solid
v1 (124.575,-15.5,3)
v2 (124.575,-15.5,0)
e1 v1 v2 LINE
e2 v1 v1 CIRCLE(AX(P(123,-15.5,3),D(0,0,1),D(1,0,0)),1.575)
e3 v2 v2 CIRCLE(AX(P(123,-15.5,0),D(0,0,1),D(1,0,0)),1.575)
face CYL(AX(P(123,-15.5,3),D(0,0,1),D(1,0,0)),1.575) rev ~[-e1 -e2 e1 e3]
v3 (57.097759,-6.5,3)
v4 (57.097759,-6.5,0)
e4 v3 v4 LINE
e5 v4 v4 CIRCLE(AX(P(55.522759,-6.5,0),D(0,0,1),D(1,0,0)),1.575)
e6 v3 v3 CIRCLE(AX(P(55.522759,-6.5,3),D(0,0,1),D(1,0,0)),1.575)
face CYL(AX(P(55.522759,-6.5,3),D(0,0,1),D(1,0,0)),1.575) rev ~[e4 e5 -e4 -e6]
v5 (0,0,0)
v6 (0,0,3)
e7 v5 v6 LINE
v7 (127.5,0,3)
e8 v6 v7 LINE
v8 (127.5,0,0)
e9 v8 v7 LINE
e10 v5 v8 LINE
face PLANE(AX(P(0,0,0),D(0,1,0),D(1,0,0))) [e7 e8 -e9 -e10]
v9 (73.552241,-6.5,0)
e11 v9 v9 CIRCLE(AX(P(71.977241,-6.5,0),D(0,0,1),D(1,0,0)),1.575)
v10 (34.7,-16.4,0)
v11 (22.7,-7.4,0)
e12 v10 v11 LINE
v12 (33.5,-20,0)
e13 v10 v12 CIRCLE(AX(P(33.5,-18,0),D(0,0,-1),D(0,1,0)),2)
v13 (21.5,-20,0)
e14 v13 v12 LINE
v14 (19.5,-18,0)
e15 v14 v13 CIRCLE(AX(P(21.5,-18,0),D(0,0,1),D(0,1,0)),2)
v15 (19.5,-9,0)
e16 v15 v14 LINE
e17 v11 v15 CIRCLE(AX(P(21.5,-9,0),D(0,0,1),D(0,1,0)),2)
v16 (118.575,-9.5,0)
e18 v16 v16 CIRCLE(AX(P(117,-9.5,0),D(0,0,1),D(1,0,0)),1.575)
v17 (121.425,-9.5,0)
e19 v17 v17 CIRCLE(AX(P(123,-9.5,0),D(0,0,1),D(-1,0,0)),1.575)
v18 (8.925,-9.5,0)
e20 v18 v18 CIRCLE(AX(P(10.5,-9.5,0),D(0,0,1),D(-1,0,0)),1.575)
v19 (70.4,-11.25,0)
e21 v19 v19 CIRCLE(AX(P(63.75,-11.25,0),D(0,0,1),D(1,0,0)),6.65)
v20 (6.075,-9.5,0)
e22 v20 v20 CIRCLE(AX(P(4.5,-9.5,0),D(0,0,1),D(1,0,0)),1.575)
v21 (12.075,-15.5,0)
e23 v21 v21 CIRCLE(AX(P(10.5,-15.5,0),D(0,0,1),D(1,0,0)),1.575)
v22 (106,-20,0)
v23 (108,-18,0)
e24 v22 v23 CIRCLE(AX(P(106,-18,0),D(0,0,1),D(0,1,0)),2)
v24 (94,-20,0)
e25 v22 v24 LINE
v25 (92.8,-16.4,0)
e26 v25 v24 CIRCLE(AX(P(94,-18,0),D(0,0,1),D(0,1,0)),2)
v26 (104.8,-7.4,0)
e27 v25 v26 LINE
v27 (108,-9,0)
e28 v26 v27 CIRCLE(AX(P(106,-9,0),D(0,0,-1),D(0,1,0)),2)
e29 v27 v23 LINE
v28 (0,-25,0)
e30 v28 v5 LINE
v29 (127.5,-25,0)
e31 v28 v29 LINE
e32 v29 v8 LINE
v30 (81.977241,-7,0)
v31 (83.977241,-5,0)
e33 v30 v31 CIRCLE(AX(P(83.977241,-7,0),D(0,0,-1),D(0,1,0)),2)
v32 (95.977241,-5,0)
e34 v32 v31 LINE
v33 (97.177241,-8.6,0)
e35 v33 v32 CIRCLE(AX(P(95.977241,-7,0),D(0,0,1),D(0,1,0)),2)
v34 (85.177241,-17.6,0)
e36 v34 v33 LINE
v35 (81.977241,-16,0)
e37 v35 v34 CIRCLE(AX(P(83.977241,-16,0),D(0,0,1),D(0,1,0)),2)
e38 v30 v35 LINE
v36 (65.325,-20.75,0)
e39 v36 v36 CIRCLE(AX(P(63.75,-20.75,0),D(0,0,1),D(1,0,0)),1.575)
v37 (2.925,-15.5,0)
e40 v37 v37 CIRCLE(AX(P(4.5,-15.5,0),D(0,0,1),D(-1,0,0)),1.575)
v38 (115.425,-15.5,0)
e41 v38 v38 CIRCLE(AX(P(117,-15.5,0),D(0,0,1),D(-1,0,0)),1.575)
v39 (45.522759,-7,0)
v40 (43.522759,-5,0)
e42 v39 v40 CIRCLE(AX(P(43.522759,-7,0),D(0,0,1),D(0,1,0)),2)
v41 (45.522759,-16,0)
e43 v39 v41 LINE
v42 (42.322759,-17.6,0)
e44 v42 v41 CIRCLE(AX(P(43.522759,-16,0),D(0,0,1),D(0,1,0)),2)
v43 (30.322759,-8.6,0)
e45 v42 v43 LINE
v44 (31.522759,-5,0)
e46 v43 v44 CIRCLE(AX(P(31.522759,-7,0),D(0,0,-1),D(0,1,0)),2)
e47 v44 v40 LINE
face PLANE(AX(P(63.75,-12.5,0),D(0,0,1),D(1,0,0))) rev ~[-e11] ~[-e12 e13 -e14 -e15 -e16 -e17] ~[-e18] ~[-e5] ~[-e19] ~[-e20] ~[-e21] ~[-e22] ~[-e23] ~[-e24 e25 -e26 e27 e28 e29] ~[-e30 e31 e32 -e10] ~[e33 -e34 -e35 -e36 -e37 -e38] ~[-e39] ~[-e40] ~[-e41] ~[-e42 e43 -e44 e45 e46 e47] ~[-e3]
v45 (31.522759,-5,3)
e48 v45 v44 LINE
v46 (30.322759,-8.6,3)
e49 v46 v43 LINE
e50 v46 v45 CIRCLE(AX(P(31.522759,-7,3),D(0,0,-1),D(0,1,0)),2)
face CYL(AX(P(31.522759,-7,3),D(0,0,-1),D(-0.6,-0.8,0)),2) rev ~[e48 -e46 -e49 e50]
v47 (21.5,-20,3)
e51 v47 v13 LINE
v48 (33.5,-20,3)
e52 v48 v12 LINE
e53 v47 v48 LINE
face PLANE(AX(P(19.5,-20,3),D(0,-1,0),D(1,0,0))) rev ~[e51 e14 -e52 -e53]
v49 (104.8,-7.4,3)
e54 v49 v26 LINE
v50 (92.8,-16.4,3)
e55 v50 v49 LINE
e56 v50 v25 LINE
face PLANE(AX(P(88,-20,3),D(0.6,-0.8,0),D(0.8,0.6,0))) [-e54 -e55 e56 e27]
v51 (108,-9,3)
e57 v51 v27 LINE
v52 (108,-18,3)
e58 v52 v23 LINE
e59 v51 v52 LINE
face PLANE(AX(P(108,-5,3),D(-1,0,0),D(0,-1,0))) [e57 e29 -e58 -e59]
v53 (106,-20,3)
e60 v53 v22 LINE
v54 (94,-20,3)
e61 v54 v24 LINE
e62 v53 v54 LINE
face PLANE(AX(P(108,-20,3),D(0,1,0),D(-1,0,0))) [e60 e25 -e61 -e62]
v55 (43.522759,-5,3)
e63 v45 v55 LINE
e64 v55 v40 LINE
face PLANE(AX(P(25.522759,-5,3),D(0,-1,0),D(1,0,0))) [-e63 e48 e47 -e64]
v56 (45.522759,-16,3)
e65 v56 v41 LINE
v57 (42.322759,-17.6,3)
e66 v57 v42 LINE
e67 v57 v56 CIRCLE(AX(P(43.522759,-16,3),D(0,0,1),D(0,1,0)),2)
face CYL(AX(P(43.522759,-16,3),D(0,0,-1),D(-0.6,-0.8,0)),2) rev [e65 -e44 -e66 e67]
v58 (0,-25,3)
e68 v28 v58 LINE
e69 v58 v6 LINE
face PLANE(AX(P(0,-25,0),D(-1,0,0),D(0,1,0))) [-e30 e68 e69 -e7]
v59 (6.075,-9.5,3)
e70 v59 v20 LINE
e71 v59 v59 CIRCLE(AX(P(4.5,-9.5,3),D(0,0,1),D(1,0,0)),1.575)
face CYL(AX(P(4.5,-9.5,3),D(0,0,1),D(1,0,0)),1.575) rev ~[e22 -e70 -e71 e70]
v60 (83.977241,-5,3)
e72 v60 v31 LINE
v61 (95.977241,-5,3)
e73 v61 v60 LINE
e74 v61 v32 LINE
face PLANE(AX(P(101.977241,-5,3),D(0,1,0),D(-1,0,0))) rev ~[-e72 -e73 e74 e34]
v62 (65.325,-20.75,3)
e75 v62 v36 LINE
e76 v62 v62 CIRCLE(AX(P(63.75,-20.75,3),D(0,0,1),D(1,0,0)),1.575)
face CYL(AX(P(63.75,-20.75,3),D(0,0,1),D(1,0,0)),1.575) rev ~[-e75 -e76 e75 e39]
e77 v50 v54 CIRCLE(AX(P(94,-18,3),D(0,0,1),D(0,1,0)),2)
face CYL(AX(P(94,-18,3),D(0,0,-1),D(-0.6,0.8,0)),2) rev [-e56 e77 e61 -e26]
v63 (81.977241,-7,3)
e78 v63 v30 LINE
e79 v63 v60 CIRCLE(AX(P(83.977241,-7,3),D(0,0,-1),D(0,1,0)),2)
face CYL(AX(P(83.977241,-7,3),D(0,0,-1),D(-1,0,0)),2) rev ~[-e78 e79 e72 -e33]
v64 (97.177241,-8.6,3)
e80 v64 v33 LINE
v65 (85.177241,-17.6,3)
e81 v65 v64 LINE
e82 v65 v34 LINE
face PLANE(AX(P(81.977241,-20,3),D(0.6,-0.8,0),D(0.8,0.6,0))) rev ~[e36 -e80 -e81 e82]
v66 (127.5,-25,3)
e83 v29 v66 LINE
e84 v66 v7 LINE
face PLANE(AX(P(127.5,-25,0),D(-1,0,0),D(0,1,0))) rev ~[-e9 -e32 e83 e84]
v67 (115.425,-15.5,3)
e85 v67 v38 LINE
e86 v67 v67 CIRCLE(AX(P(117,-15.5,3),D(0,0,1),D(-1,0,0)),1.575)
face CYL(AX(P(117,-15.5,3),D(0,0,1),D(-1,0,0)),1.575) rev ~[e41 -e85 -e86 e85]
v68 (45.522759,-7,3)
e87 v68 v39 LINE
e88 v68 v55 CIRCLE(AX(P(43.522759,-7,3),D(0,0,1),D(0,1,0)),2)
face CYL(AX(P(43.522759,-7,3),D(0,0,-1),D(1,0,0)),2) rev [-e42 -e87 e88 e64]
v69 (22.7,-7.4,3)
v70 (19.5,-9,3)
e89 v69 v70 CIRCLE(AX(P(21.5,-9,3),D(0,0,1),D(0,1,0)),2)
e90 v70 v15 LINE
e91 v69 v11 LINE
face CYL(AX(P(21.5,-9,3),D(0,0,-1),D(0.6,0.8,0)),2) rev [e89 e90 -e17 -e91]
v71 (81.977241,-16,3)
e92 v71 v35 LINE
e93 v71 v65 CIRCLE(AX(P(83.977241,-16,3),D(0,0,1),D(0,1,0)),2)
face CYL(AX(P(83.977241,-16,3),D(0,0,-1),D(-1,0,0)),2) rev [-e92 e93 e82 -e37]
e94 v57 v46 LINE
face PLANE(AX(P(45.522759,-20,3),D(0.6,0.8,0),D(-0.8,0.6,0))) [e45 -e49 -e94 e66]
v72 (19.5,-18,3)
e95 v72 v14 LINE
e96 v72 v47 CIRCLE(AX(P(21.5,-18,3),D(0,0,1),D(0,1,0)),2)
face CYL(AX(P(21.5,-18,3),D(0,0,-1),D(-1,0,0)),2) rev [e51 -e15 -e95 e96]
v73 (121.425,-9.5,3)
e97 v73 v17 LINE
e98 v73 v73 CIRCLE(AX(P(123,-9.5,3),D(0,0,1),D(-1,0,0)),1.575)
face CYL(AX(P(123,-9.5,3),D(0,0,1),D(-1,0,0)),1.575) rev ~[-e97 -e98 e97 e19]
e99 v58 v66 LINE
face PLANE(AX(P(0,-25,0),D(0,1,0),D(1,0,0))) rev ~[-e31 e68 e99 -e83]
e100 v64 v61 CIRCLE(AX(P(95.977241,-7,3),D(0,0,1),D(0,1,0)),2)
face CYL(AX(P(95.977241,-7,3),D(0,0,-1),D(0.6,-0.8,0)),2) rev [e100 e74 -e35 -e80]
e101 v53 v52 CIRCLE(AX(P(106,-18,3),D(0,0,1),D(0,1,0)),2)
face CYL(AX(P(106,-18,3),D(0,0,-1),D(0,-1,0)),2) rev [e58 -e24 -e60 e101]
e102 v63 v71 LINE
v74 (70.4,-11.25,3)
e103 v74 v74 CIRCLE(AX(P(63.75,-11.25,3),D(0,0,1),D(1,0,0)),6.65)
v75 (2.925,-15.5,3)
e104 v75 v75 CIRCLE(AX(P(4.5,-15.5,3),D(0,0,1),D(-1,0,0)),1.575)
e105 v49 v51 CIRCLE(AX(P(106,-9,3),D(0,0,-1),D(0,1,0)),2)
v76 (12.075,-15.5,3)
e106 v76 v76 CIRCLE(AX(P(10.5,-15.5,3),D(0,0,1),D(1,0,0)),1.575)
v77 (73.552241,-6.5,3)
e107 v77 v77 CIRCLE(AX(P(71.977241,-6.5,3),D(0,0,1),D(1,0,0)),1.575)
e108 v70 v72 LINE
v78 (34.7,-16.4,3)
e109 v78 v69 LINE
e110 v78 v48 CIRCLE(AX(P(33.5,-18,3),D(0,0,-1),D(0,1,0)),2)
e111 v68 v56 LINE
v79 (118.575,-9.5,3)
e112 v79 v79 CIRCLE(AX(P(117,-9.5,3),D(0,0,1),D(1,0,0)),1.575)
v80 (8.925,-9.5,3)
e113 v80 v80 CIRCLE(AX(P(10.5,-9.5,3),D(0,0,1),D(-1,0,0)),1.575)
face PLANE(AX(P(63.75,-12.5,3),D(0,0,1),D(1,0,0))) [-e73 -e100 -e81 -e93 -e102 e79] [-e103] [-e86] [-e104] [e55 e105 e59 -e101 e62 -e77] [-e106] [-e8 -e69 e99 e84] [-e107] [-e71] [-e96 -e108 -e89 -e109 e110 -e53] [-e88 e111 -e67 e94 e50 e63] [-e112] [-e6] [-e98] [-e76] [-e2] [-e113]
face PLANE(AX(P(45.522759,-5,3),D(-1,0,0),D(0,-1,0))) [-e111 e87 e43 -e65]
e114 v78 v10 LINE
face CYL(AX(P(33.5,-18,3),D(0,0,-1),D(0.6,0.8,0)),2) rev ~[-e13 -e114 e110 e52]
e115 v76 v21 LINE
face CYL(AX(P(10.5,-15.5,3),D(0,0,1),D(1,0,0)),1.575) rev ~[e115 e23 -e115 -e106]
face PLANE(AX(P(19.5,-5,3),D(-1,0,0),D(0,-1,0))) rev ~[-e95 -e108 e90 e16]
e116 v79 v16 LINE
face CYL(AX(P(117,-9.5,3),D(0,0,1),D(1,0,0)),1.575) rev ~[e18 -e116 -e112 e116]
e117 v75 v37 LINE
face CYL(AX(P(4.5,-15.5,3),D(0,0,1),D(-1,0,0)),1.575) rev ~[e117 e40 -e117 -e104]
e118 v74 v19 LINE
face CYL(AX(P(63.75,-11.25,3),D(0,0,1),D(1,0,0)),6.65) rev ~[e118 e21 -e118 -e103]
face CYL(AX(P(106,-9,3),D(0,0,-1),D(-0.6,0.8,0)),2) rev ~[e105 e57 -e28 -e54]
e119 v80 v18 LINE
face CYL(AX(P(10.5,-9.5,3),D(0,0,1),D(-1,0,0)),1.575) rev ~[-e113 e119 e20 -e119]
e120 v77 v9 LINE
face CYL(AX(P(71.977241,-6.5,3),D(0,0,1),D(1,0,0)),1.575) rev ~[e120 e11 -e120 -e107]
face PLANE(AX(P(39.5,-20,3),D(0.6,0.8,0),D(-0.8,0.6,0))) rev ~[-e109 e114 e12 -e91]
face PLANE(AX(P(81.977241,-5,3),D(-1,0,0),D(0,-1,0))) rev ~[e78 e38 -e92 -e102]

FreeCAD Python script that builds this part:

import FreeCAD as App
import Part
import Sketcher

V = App.Vector
Q = App.Units.Quantity


def edges_at(feature, points):
    """Names of the edges that pass closest to the given points."""
    edges = feature.Shape.Edges
    near = lambda p: min(range(len(edges)), key=lambda i: edges[i].distToShape(Part.Vertex(*p))[0])
    return sorted({f"Edge{near(p) + 1}" for p in points})

doc = App.newDocument("Part")
params = doc.addObject("Spreadsheet::Sheet", "Params")
for row, (alias, value) in enumerate([
    ("sketch1_height", "25 mm"),
    ("sketch1_width", "127.5 mm"),
    ("pad1_length", "3 mm"),
    ("sketch2_diameter", "13.3 mm"),
    ("sketch2_diameter2", "3.15 mm"),
    ("sketch2_width", "20 mm"),
    ("sketch2_height", "15 mm"),
    ("fillet_radius", "2 mm"),
], start=1):
    params.set(f"A{row}", alias)
    params.set(f"B{row}", "=" + value)
    params.setAlias(f"B{row}", alias)

body = doc.addObject("PartDesign::Body", "Body")

# Sketch on XY plane
sketch1 = doc.addObject("Sketcher::SketchObject", "Sketch")
body.addObject(sketch1)
sketch1.AttachmentSupport = (doc.XY_Plane, [""])
sketch1.MapMode = "FlatFace"
sketch1.addGeometry([
    Part.LineSegment(V(0, 0, 0), V(0, -25, 0)),
    Part.LineSegment(V(0, -25, 0), V(127.5, -25, 0)),
    Part.LineSegment(V(127.5, -25, 0), V(127.5, 0, 0)),
    Part.LineSegment(V(127.5, 0, 0), V(0, 0, 0)),
], False)
sketch1.addConstraint([
    Sketcher.Constraint("Coincident", 0, 2, 1, 1),
    Sketcher.Constraint("Coincident", 1, 2, 2, 1),
    Sketcher.Constraint("Coincident", 2, 2, 3, 1),
    Sketcher.Constraint("Coincident", 3, 2, 0, 1),
    Sketcher.Constraint("Vertical", 0),
    Sketcher.Constraint("Horizontal", 1),
    Sketcher.Constraint("Vertical", 2),
    Sketcher.Constraint("Horizontal", 3),
    Sketcher.Constraint("Coincident", 3, 2, -1, 1),
    Sketcher.Constraint("DistanceY", 0, 2, 0, 1, Q("25 mm")),
    Sketcher.Constraint("DistanceX", 1, 1, 1, 2, Q("127.5 mm")),
])
sketch1.setExpression("Constraints[9]", "Params.sketch1_height")
sketch1.setExpression("Constraints[10]", "Params.sketch1_width")
pad1 = doc.addObject("PartDesign::Pad", "Pad")
body.addObject(pad1)
pad1.Profile = sketch1
pad1.setExpression("Length", "Params.pad1_length")

# Sketch on XY plane
sketch2 = doc.addObject("Sketcher::SketchObject", "Sketch001")
body.addObject(sketch2)
sketch2.AttachmentSupport = (doc.XY_Plane, [""])
sketch2.MapMode = "FlatFace"
sketch2.AttachmentOffset = App.Placement(V(0, 0, 3), App.Rotation())
sketch2.addGeometry([
    Part.Circle(V(4.5, -9.5, 0), V(0, 0, 1), 1.575),  # 0
    Part.Circle(V(10.5, -9.5, 0), V(0, 0, 1), 1.575),  # 1
    Part.Circle(V(10.5, -15.5, 0), V(0, 0, 1), 1.575),  # 2
    Part.Circle(V(4.5, -15.5, 0), V(0, 0, 1), 1.575),  # 3
    Part.Circle(V(123, -15.5, 0), V(0, 0, 1), 1.575),  # 4
    Part.Circle(V(117, -15.5, 0), V(0, 0, 1), 1.575),  # 5
    Part.Circle(V(117, -9.5, 0), V(0, 0, 1), 1.575),  # 6
    Part.Circle(V(123, -9.5, 0), V(0, 0, 1), 1.575),  # 7
    Part.Circle(V(63.75, -11.25, 0), V(0, 0, 1), 6.65),  # 8
    Part.Circle(V(55.522759, -6.5, 0), V(0, 0, 1), 1.575),  # 9
    Part.Circle(V(71.977241, -6.5, 0), V(0, 0, 1), 1.575),  # 10
    Part.Circle(V(63.75, -20.75, 0), V(0, 0, 1), 1.575),  # 11
    Part.LineSegment(V(108, -20, 0), V(108, -5, 0)),  # 12
    Part.LineSegment(V(108, -5, 0), V(88, -20, 0)),  # 13
    Part.LineSegment(V(88, -20, 0), V(108, -20, 0)),  # 14
    Part.LineSegment(V(81.977241, -5, 0), V(81.977241, -20, 0)),  # 15
    Part.LineSegment(V(81.977241, -20, 0), V(101.977241, -5, 0)),  # 16
    Part.LineSegment(V(101.977241, -5, 0), V(81.977241, -5, 0)),  # 17
    Part.LineSegment(V(45.522759, -5, 0), V(25.522759, -5, 0)),  # 18
    Part.LineSegment(V(25.522759, -5, 0), V(45.522759, -20, 0)),  # 19
    Part.LineSegment(V(45.522759, -20, 0), V(45.522759, -5, 0)),  # 20
    Part.LineSegment(V(39.5, -20, 0), V(19.5, -5, 0)),  # 21
    Part.LineSegment(V(19.5, -5, 0), V(19.5, -20, 0)),  # 22
    Part.LineSegment(V(19.5, -20, 0), V(39.5, -20, 0)),  # 23
], False)
sketch2.addConstraint([
    Sketcher.Constraint("Coincident", 12, 2, 13, 1),
    Sketcher.Constraint("Coincident", 13, 2, 14, 1),
    Sketcher.Constraint("Coincident", 14, 2, 12, 1),
    Sketcher.Constraint("Coincident", 15, 2, 16, 1),
    Sketcher.Constraint("Coincident", 16, 2, 17, 1),
    Sketcher.Constraint("Coincident", 17, 2, 15, 1),
    Sketcher.Constraint("Coincident", 18, 2, 19, 1),
    Sketcher.Constraint("Coincident", 19, 2, 20, 1),
    Sketcher.Constraint("Coincident", 20, 2, 18, 1),
    Sketcher.Constraint("Coincident", 21, 2, 22, 1),
    Sketcher.Constraint("Coincident", 22, 2, 23, 1),
    Sketcher.Constraint("Coincident", 23, 2, 21, 1),
    Sketcher.Constraint("Vertical", 12),
    Sketcher.Constraint("Horizontal", 14),
    Sketcher.Constraint("Vertical", 15),
    Sketcher.Constraint("Horizontal", 17),
    Sketcher.Constraint("Horizontal", 18),
    Sketcher.Constraint("Vertical", 20),
    Sketcher.Constraint("Vertical", 22),
    Sketcher.Constraint("Horizontal", 23),
    Sketcher.Constraint("Equal", 0, 1),
    Sketcher.Constraint("Equal", 1, 2),
    Sketcher.Constraint("Equal", 2, 3),
    Sketcher.Constraint("Equal", 3, 4),
    Sketcher.Constraint("Equal", 4, 5),
    Sketcher.Constraint("Equal", 5, 6),
    Sketcher.Constraint("Equal", 6, 7),
    Sketcher.Constraint("Equal", 7, 9),
    Sketcher.Constraint("Equal", 9, 10),
    Sketcher.Constraint("Equal", 10, 11),
    Sketcher.Constraint("Parallel", 13, 16),
    Sketcher.Constraint("Parallel", 19, 21),
    Sketcher.Constraint("Horizontal", 0, 3, 1, 3),
    Sketcher.Constraint("Horizontal", 2, 3, 3, 3),
    Sketcher.Constraint("Horizontal", 3, 3, 4, 3),
    Sketcher.Constraint("Horizontal", 4, 3, 5, 3),
    Sketcher.Constraint("Horizontal", 1, 3, 6, 3),
    Sketcher.Constraint("Horizontal", 6, 3, 7, 3),
    Sketcher.Constraint("Horizontal", 9, 3, 10, 3),
    Sketcher.Constraint("Horizontal", 14, 2, 15, 2),
    Sketcher.Constraint("Horizontal", 12, 2, 16, 2),
    Sketcher.Constraint("Horizontal", 17, 2, 18, 2),
    Sketcher.Constraint("Horizontal", 15, 2, 19, 2),
    Sketcher.Constraint("Horizontal", 20, 2, 21, 2),
    Sketcher.Constraint("Horizontal", 19, 2, 22, 2),
    Sketcher.Constraint("Vertical", 1, 3, 2, 3),
    Sketcher.Constraint("Vertical", 0, 3, 3, 3),
    Sketcher.Constraint("Vertical", 5, 3, 6, 3),
    Sketcher.Constraint("Vertical", 4, 3, 7, 3),
    Sketcher.Constraint("Vertical", 8, 3, 11, 3),
    Sketcher.Constraint("Equal", 17, 18),
    Sketcher.Constraint("Diameter", 8, Q("13.3 mm")),
    Sketcher.Constraint("Diameter", 0, Q("3.15 mm")),
    Sketcher.Constraint("DistanceX", 14, 1, 14, 2, Q("20 mm")),
    Sketcher.Constraint("DistanceY", 12, 1, 12, 2, Q("15 mm")),
    Sketcher.Constraint("DistanceX", -1, 1, 4, 3, Q("123 mm")),
    Sketcher.Constraint("DistanceX", -1, 1, 5, 3, Q("117 mm")),
    Sketcher.Constraint("DistanceX", -1, 1, 12, 2, Q("108 mm")),
    Sketcher.Constraint("DistanceY", 12, 2, -1, 1, Q("5 mm")),
    Sketcher.Constraint("DistanceX", 0, 3, 1, 3, Q("6 mm")),
    Sketcher.Constraint("DistanceY", 2, 3, 1, 3, Q("6 mm")),
    Sketcher.Constraint("DistanceY", 1, 3, 9, 3, Q("3 mm")),
    Sketcher.Constraint("DistanceX", 10, 3, 15, 2, Q("10 mm")),
    Sketcher.Constraint("DistanceX", 18, 2, 9, 3, Q("30 mm")),
    Sketcher.Constraint("DistanceX", 1, 3, 21, 2, Q("9 mm")),
    Sketcher.Constraint("DistanceX", -1, 1, 0, 3, Q("4.5 mm")),
    Sketcher.Constraint("DistanceY", 0, 3, -1, 1, Q("9.5 mm")),
    Sketcher.Constraint("DistanceY", 11, 3, 8, 3, Q("9.5 mm")),
    Sketcher.Constraint("DistanceX", -1, 1, 8, 3, Q("63.75 mm")),
    Sketcher.Constraint("DistanceY", 8, 3, -1, 1, Q("11.25 mm")),
    Sketcher.Constraint("DistanceX", -1, 1, 9, 3, Q("55.522759 mm")),
    Sketcher.Constraint("DistanceX", -1, 1, 10, 3, Q("71.977241 mm")),
])
sketch2.setExpression("Constraints[51]", "Params.sketch2_diameter")
sketch2.setExpression("Constraints[52]", "Params.sketch2_diameter2")
sketch2.setExpression("Constraints[53]", "Params.sketch2_width")
sketch2.setExpression("Constraints[54]", "Params.sketch2_height")
pocket1 = doc.addObject("PartDesign::Pocket", "Pocket")
body.addObject(pocket1)
pocket1.Profile = sketch2
pocket1.Type = "ThroughAll"
doc.recompute()

fillet = doc.addObject("PartDesign::Fillet", "Fillet")
body.addObject(fillet)
fillet.Base = (pocket1, edges_at(pocket1, [
    (45.523, -20, 1.5),
    (25.523, -5, 1.5),
    (45.523, -5, 1.5),
    (39.5, -20, 1.5),
    (19.5, -20, 1.5),
    (19.5, -5, 1.5),
    (81.977, -5, 1.5),
    (101.977, -5, 1.5),
    (81.977, -20, 1.5),
    (88, -20, 1.5),
    (108, -5, 1.5),
    (108, -20, 1.5),
]))
fillet.setExpression("Radius", "Params.fillet_radius")

doc.recompute()
